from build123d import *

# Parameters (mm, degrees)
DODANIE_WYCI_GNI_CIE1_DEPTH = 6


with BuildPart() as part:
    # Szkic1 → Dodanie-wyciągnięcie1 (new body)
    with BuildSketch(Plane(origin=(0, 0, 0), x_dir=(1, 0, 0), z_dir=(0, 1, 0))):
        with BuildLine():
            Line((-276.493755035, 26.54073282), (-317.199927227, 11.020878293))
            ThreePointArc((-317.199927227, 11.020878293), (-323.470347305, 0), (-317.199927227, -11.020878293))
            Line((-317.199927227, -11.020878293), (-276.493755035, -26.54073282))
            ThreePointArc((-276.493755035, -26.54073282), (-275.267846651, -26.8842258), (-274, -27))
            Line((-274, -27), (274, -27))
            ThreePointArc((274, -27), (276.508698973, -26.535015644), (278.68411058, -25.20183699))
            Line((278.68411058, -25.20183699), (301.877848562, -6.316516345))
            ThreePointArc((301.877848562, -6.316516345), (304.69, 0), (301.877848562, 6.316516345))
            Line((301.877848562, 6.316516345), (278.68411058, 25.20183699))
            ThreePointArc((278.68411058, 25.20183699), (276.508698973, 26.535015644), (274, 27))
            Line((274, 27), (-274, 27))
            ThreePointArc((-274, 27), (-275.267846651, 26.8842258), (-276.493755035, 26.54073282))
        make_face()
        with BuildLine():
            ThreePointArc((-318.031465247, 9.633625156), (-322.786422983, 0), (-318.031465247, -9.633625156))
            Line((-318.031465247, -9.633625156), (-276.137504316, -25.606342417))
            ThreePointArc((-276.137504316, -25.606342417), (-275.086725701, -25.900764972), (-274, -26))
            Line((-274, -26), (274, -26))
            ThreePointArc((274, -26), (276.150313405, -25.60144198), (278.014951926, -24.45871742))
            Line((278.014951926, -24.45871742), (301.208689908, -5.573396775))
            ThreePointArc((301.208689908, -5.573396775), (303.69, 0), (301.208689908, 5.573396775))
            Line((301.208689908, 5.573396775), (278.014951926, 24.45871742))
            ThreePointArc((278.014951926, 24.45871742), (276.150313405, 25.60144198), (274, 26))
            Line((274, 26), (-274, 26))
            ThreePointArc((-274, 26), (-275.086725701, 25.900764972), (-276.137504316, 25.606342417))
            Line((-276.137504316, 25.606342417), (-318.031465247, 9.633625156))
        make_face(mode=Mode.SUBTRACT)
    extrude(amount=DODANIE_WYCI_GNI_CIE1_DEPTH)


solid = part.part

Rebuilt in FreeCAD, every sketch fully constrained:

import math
import FreeCAD as App
import Part
import Sketcher

V = App.Vector
Q = App.Units.Quantity

doc = App.newDocument("Part")
params = doc.addObject("Spreadsheet::Sheet", "Params")
for row, (alias, value) in enumerate([
    ("sketch1_radius", "7 mm"),
    ("sketch1_radius2", "6 mm"),
    ("sketch1_radius3", "8.5 mm"),
    ("sketch1_width", "548 mm"),
    ("pad1_length", "6 mm"),
], start=1):
    params.set(f"A{row}", alias)
    params.set(f"B{row}", "=" + value)
    params.setAlias(f"B{row}", alias)

body = doc.addObject("PartDesign::Body", "Body")

sketch1 = doc.addObject("Sketcher::SketchObject", "Sketch")
body.addObject(sketch1)
sketch1.AttachmentSupport = (doc.XZ_Plane, [""])
sketch1.MapMode = "FlatFace"
sketch1.addGeometry([
    Part.LineSegment(V(-276.493755, -26.540733, 0), V(-317.199927, -11.020878, 0)),
    Part.ArcOfCircle(Part.Circle(V(-310.65, 0, 0), V(0, 0, 1), 12.820347), math.radians(120.723858), math.radians(239.276142)),
    Part.LineSegment(V(-317.199927, 11.020878, 0), V(-276.493755, 26.540733, 0)),
    Part.ArcOfCircle(Part.Circle(V(-274, 20, 0), V(0, 0, 1), 7), math.radians(90), math.radians(110.870118)),
    Part.LineSegment(V(-274, 27, 0), V(274, 27, 0)),
    Part.ArcOfCircle(Part.Circle(V(274, 20, 0), V(0, 0, 1), 7), math.radians(47.997837), math.radians(90)),
    Part.LineSegment(V(278.684111, 25.201837, 0), V(301.877849, 6.316516, 0)),
    Part.ArcOfCircle(Part.Circle(V(296.19, 0, 0), V(0, 0, 1), 8.5), math.radians(-47.997837), math.radians(47.997837)),
    Part.LineSegment(V(301.877849, -6.316516, 0), V(278.684111, -25.201837, 0)),
    Part.ArcOfCircle(Part.Circle(V(274, -20, 0), V(0, 0, 1), 7), math.radians(-90), math.radians(-47.997837)),
    Part.LineSegment(V(274, -27, 0), V(-274, -27, 0)),
    Part.ArcOfCircle(Part.Circle(V(-274, -20, 0), V(0, 0, 1), 7), math.radians(-110.870118), math.radians(-90)),
    Part.ArcOfCircle(Part.Circle(V(-310.65, 0, 0), V(0, 0, 1), 12.136423), math.radians(127.460017), math.radians(232.539983)),
    Part.LineSegment(V(-318.031465, -9.633625, 0), V(-276.137504, -25.606342, 0)),
    Part.ArcOfCircle(Part.Circle(V(-274, -20, 0), V(0, 0, 1), 6), math.radians(-110.870118), math.radians(-90)),
    Part.LineSegment(V(-274, -26, 0), V(274, -26, 0)),
    Part.ArcOfCircle(Part.Circle(V(274, -20, 0), V(0, 0, 1), 6), math.radians(-90), math.radians(-47.997838)),
    Part.LineSegment(V(278.014952, -24.458717, 0), V(301.20869, -5.573397, 0)),
    Part.ArcOfCircle(Part.Circle(V(296.19, 0, 0), V(0, 0, 1), 7.5), math.radians(-47.997837), math.radians(47.997837)),
    Part.LineSegment(V(301.20869, 5.573397, 0), V(278.014952, 24.458717, 0)),
    Part.ArcOfCircle(Part.Circle(V(274, 20, 0), V(0, 0, 1), 6), math.radians(47.997838), math.radians(90)),
    Part.LineSegment(V(274, 26, 0), V(-274, 26, 0)),
    Part.ArcOfCircle(Part.Circle(V(-274, 20, 0), V(0, 0, 1), 6), math.radians(90), math.radians(110.870118)),
    Part.LineSegment(V(-276.137504, 25.606342, 0), V(-318.031465, 9.633625, 0)),
], False)
sketch1.addConstraint([
    Sketcher.Constraint("Coincident", 0, 2, 1, 2),
    Sketcher.Constraint("Coincident", 1, 1, 2, 1),
    Sketcher.Constraint("Tangent", 2, 2, 3, 2),
    Sketcher.Constraint("Tangent", 3, 1, 4, 1),
    Sketcher.Constraint("Tangent", 4, 2, 5, 2),
    Sketcher.Constraint("Coincident", 5, 1, 6, 1),
    Sketcher.Constraint("Coincident", 6, 2, 7, 2),
    Sketcher.Constraint("Coincident", 7, 1, 8, 1),
    Sketcher.Constraint("Coincident", 8, 2, 9, 2),
    Sketcher.Constraint("Tangent", 9, 1, 10, 1),
    Sketcher.Constraint("Tangent", 10, 2, 11, 2),
    Sketcher.Constraint("Tangent", 11, 1, 0, 1),
    Sketcher.Constraint("Coincident", 12, 2, 13, 1),
    Sketcher.Constraint("Tangent", 13, 2, 14, 1),
    Sketcher.Constraint("Tangent", 14, 2, 15, 1),
    Sketcher.Constraint("Tangent", 15, 2, 16, 1),
    Sketcher.Constraint("Coincident", 16, 2, 17, 1),
    Sketcher.Constraint("Coincident", 17, 2, 18, 1),
    Sketcher.Constraint("Coincident", 18, 2, 19, 1),
    Sketcher.Constraint("Coincident", 19, 2, 20, 1),
    Sketcher.Constraint("Tangent", 20, 2, 21, 1),
    Sketcher.Constraint("Tangent", 21, 2, 22, 1),
    Sketcher.Constraint("Tangent", 22, 2, 23, 1),
    Sketcher.Constraint("Coincident", 23, 2, 12, 1),
    Sketcher.Constraint("Horizontal", 4),
    Sketcher.Constraint("Horizontal", 10),
    Sketcher.Constraint("Horizontal", 15),
    Sketcher.Constraint("Horizontal", 21),
    Sketcher.Constraint("Coincident", 12, 3, 1, 3),
    Sketcher.Constraint("Coincident", 14, 3, 11, 3),
    Sketcher.Constraint("Coincident", 16, 3, 9, 3),
    Sketcher.Constraint("Coincident", 18, 3, 7, 3),
    Sketcher.Constraint("Coincident", 20, 3, 5, 3),
    Sketcher.Constraint("Coincident", 22, 3, 3, 3),
    Sketcher.Constraint("Equal", 3, 5),
    Sketcher.Constraint("Equal", 5, 9),
    Sketcher.Constraint("Equal", 9, 11),
    Sketcher.Constraint("Equal", 16, 20),
    Sketcher.Constraint("Symmetric", 3, 3, 9, 3, -1, 1),
    Sketcher.Constraint("Symmetric", 0, 2, 1, 1, -1),
    Sketcher.Constraint("Symmetric", 6, 2, 7, 1, -1),
    Sketcher.Constraint("Symmetric", 5, 1, 8, 2, -1),
    Sketcher.Constraint("Symmetric", 13, 2, 22, 2, -1),
    Sketcher.Constraint("Parallel", 0, 13),
    Sketcher.Constraint("Parallel", 8, 17),
    Sketcher.Constraint("Parallel", 6, 19),
    Sketcher.Constraint("Vertical", 17, 2, 18, 2),
    Sketcher.Constraint("Equal", 8, 17),
    Sketcher.Constraint("Radius", 3, Q("7 mm")),
    Sketcher.Constraint("Radius", 14, Q("6 mm")),
    Sketcher.Constraint("Radius", 7, Q("8.5 mm")),
    Sketcher.Constraint("DistanceX", 4, 1, 4, 2, Q("548 mm")),
    Sketcher.Constraint("DistanceY", -1, 1, 3, 3, Q("20 mm")),
    Sketcher.Constraint("DistanceX", 1, 3, -1, 1, Q("310.65 mm")),
    Sketcher.Constraint("DistanceX", -1, 1, 7, 3, Q("296.19 mm")),
    Sketcher.Constraint("Radius", 1, Q("12.820347 mm")),
    Sketcher.Constraint("Radius", 12, Q("12.136423 mm")),
    Sketcher.Constraint("DistanceY", 0, 2, -1, 1, Q("11.020878 mm")),
    Sketcher.Constraint("DistanceX", -1, 1, 5, 1, Q("278.684111 mm")),
    Sketcher.Constraint("DistanceX", -1, 1, 6, 2, Q("301.877849 mm")),
    Sketcher.Constraint("DistanceX", -1, 1, 16, 2, Q("278.014952 mm")),
])
sketch1.setExpression("Constraints[48]", "Params.sketch1_radius")
sketch1.setExpression("Constraints[49]", "Params.sketch1_radius2")
sketch1.setExpression("Constraints[50]", "Params.sketch1_radius3")
sketch1.setExpression("Constraints[51]", "Params.sketch1_width")
pad1 = doc.addObject("PartDesign::Pad", "Pad")
body.addObject(pad1)
pad1.Profile = sketch1
pad1.setExpression("Length", "Params.pad1_length")
pad1.Reversed = True

doc.recompute()
